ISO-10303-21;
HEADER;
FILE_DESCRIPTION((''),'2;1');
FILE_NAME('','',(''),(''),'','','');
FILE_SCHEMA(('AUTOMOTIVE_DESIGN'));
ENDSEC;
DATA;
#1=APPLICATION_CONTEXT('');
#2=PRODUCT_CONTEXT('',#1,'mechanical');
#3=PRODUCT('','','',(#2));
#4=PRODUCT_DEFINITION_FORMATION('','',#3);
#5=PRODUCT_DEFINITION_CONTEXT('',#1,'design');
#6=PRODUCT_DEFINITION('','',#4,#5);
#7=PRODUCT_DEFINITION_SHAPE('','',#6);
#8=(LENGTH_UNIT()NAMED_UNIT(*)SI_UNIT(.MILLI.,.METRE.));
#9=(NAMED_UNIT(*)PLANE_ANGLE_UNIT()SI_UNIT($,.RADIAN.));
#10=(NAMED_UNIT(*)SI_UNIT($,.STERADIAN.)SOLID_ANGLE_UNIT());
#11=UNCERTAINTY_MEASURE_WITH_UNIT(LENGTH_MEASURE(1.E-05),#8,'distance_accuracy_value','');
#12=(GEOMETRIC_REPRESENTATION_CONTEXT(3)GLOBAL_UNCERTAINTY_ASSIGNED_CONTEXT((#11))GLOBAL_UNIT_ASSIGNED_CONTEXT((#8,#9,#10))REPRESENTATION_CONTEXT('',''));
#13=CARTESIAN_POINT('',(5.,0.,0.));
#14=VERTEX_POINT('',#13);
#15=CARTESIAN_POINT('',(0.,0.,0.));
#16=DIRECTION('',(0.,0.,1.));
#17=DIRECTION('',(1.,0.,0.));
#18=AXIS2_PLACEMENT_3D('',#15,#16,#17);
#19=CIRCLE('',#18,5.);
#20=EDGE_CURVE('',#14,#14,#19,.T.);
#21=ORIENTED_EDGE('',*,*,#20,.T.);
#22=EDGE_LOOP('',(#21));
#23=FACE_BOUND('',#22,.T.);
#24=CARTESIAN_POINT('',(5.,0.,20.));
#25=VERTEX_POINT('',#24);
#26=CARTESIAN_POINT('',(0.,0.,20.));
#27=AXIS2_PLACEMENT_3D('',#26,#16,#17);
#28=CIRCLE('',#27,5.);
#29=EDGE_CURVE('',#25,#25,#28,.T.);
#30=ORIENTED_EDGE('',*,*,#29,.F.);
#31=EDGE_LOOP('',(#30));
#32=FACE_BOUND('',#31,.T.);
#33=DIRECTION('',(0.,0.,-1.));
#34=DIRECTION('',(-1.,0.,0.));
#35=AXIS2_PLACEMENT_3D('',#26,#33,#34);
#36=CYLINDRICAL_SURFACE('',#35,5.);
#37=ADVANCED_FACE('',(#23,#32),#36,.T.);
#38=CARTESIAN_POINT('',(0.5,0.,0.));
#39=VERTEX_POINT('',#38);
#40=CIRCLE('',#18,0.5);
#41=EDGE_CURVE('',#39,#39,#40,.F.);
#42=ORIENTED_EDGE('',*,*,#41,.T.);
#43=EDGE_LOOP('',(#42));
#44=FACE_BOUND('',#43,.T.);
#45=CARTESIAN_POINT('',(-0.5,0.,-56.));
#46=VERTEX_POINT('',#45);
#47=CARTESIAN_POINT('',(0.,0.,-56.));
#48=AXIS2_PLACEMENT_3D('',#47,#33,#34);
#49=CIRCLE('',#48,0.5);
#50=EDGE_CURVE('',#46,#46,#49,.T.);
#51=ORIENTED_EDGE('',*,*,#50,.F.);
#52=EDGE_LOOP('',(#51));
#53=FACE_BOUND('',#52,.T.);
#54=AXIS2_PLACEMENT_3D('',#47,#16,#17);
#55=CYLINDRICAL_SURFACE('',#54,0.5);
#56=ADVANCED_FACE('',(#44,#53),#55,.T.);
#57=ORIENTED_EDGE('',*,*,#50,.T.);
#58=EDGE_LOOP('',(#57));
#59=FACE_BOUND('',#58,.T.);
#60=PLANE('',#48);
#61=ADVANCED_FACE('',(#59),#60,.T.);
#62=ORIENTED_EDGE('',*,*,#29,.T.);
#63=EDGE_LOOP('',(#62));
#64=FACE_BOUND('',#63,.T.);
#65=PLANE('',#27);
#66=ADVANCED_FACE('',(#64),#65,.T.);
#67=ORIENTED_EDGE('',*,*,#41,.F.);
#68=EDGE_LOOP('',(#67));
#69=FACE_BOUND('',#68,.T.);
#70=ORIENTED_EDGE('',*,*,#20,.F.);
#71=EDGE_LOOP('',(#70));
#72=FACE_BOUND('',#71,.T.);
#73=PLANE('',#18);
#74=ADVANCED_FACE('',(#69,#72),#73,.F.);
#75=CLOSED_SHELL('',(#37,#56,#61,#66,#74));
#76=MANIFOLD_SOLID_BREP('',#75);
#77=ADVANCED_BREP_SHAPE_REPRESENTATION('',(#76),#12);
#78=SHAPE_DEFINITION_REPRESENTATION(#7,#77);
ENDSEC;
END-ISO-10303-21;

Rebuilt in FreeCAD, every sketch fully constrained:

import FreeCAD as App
import Part
import Sketcher

V = App.Vector
Q = App.Units.Quantity

doc = App.newDocument("Part")
body = doc.addObject("PartDesign::Body", "Body")

# Sketch on XY plane
sketch1 = body.newObject("Sketcher::SketchObject", "Sketch")
sketch1.AttachmentSupport = (doc.getObject("XY_Plane"), [""])
sketch1.MapMode = "FlatFace"
sketch1.addGeometry(Part.Circle(V(0, 0, 0), V(0, 0, 1), 5), False)
sketch1.addConstraint(Sketcher.Constraint("Coincident", 0, 3, -1, 1))
sketch1.addConstraint(Sketcher.Constraint("Diameter", 0, Q("10 mm")))
pad1 = body.newObject("PartDesign::Pad", "Pad")
pad1.Profile = sketch1
pad1.Length = 20

# Sketch on XY plane
sketch2 = body.newObject("Sketcher::SketchObject", "Sketch001")
sketch2.AttachmentSupport = (doc.getObject("XY_Plane"), [""])
sketch2.MapMode = "FlatFace"
sketch2.addGeometry(Part.Circle(V(0, 0, 0), V(0, 0, 1), 0.5), False)
sketch2.addConstraint(Sketcher.Constraint("Coincident", 0, 3, -1, 1))
sketch2.addConstraint(Sketcher.Constraint("Diameter", 0, Q("1 mm")))
pad2 = body.newObject("PartDesign::Pad", "Pad001")
pad2.Profile = sketch2
pad2.Length = 56
pad2.Reversed = True

doc.recompute()
